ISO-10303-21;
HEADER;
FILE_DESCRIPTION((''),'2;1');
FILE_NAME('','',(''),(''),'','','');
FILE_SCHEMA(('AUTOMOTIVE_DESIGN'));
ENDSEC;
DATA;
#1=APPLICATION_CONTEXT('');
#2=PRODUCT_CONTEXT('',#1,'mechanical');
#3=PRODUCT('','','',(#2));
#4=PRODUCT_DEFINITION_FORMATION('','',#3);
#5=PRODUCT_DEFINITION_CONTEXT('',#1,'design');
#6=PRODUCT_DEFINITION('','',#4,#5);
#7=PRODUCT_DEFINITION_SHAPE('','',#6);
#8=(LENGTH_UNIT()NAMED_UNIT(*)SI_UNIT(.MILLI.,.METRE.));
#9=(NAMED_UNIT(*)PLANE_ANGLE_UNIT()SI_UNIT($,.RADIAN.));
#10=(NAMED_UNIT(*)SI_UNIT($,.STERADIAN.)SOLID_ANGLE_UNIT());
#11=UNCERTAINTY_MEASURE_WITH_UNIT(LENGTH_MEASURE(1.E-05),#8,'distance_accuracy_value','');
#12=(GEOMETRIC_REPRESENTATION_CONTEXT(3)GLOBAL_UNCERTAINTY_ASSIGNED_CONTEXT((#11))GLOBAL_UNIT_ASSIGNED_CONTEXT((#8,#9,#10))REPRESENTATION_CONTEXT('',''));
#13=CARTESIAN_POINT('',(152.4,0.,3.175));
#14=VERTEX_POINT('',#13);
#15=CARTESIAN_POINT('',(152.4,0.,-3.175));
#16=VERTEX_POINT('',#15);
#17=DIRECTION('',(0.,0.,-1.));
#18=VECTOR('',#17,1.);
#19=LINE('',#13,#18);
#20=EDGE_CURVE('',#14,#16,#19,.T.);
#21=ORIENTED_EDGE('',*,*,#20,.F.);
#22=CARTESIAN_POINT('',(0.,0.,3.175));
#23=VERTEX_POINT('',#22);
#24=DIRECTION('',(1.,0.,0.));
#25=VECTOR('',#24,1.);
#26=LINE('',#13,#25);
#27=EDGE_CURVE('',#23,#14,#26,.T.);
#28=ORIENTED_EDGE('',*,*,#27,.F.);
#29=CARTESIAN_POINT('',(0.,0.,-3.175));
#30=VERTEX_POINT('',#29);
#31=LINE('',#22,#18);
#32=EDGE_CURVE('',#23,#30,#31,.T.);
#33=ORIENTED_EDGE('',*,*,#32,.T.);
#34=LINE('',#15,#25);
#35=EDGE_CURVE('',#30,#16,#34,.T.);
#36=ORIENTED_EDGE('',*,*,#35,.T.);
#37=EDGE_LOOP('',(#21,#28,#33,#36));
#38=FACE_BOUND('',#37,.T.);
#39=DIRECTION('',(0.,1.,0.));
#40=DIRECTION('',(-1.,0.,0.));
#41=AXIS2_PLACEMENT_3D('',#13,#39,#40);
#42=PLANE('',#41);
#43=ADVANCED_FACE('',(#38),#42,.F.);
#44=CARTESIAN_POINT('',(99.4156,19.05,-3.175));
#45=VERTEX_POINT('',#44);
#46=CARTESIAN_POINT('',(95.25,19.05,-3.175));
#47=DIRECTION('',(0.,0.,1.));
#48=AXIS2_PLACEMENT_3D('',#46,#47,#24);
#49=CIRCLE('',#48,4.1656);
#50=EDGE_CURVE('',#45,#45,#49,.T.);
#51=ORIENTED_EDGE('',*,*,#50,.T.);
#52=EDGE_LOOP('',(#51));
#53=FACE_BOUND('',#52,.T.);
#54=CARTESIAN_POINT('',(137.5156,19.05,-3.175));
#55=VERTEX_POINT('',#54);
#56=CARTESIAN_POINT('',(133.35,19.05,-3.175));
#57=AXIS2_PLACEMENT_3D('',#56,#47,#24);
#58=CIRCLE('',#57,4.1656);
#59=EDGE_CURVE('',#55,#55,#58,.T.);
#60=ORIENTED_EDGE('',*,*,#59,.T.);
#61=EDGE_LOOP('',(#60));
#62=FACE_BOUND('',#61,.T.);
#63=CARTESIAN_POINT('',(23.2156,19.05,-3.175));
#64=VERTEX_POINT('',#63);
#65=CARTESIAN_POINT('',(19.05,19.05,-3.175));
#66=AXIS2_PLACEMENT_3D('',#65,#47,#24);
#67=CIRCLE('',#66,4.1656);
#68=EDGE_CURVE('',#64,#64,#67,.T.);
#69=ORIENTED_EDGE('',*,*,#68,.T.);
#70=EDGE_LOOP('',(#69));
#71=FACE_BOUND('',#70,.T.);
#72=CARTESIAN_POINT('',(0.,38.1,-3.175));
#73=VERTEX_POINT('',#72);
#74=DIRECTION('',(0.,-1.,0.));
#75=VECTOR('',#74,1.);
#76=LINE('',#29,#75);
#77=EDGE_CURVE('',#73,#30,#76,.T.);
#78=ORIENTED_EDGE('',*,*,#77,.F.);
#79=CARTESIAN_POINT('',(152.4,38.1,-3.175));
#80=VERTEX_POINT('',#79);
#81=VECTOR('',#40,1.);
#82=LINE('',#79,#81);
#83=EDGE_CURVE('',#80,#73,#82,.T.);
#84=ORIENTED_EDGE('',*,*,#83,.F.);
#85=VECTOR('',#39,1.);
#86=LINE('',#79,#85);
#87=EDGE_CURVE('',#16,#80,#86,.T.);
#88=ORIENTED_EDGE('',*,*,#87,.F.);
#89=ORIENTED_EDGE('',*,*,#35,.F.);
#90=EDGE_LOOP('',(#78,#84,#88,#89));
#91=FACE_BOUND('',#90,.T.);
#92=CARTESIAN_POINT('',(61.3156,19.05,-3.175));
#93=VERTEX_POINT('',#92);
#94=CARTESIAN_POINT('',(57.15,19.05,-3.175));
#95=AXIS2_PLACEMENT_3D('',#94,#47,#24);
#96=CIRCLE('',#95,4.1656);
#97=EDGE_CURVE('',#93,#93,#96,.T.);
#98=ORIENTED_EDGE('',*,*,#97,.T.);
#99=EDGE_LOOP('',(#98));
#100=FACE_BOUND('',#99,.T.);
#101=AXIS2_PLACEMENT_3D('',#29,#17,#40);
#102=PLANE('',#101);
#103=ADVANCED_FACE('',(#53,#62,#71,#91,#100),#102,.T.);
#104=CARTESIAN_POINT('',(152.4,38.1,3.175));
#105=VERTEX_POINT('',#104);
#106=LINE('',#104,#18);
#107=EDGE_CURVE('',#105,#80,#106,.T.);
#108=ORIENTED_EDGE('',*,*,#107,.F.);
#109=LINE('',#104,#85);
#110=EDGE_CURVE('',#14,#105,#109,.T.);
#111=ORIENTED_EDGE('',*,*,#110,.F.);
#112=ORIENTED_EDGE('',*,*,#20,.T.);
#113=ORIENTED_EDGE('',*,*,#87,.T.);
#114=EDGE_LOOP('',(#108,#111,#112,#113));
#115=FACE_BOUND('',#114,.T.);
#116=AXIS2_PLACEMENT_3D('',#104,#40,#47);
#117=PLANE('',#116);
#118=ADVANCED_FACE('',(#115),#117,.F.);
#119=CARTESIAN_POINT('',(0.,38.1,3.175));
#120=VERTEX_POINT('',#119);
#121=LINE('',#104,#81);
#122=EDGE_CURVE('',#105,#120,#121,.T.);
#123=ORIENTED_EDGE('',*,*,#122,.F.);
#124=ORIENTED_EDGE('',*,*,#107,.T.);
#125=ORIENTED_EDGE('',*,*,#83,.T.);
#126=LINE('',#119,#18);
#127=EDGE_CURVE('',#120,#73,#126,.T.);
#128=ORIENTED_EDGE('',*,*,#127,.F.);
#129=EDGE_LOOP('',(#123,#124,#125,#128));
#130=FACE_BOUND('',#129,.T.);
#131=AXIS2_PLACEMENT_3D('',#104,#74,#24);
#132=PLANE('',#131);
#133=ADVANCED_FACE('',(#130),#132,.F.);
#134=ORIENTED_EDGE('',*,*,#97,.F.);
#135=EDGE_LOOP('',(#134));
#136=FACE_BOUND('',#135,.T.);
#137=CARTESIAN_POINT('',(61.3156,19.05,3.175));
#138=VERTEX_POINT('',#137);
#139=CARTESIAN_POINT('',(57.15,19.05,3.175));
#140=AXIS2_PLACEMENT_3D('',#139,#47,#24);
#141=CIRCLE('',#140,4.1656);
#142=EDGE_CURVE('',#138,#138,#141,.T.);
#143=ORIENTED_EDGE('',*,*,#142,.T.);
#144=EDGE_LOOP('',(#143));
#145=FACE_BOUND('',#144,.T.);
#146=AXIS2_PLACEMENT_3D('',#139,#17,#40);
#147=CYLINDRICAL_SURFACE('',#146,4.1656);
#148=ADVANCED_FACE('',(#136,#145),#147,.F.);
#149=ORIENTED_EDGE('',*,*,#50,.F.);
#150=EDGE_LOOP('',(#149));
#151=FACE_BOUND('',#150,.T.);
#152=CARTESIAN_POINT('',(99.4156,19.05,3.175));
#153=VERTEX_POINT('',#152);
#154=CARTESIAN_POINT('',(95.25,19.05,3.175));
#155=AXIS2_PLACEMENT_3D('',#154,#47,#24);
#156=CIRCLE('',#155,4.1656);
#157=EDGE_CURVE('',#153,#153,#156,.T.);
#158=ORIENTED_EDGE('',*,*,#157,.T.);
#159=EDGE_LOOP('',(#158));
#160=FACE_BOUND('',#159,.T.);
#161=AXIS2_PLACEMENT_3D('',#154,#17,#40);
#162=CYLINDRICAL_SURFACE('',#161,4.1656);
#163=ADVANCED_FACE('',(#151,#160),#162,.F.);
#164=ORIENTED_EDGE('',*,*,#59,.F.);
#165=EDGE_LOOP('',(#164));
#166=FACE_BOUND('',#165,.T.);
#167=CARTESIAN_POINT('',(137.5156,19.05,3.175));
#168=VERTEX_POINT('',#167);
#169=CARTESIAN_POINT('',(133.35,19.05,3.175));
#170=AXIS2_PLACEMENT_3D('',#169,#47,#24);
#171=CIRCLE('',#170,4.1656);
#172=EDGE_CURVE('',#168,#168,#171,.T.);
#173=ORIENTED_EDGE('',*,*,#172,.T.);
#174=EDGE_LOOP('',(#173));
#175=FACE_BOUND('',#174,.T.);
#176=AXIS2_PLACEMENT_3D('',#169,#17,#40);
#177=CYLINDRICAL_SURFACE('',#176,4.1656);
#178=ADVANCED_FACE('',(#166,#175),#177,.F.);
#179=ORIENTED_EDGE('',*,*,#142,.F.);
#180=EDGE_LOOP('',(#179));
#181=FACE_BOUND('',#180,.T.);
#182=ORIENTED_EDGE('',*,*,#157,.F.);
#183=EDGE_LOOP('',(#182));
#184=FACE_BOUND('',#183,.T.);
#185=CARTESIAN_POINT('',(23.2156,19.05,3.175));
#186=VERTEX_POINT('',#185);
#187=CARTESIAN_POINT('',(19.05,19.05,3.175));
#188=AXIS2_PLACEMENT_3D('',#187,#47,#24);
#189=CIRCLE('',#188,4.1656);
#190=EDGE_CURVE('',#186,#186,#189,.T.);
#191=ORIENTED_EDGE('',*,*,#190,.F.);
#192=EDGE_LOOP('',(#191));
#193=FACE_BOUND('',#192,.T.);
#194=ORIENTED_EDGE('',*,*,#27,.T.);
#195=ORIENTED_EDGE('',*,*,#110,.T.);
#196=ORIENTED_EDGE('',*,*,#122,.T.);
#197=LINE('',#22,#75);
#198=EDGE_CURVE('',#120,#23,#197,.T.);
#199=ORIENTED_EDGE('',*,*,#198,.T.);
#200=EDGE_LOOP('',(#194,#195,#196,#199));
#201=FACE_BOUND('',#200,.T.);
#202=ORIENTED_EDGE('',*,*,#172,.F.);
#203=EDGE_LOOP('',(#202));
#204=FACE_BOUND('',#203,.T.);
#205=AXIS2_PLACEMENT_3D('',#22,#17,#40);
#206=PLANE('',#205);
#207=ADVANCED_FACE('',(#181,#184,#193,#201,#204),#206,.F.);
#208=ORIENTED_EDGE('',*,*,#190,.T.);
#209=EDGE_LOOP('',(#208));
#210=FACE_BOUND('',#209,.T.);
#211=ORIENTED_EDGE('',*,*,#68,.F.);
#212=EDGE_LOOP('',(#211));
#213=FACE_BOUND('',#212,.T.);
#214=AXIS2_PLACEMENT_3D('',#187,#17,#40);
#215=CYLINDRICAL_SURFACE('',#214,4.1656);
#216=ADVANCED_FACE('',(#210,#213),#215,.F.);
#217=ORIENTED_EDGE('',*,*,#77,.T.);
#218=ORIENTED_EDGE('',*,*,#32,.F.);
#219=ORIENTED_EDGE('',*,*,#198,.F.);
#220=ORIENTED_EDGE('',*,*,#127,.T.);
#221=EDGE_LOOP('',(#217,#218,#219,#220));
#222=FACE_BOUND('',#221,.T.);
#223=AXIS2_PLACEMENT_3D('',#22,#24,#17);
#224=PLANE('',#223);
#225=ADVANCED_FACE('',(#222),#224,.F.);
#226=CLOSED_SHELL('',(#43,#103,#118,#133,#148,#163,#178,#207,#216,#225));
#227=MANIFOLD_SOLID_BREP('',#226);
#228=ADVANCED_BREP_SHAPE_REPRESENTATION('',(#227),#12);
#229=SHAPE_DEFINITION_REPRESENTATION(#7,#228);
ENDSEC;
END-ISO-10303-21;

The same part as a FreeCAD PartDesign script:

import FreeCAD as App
import Part
import Sketcher
Q = App.Units.Quantity

doc = App.newDocument("Part")
body = doc.addObject("PartDesign::Body", "Body")

# Sketch on XY plane
sketch1 = body.newObject("Sketcher::SketchObject", "Sketch")
sketch1.AttachmentSupport = (doc.getObject("XY_Plane"), [""])
sketch1.MapMode = "FlatFace"
sketch1.addGeometry([
    Part.LineSegment(App.Vector(0, 38.1, 0), App.Vector(0, 0, 0)),  # 0
    Part.LineSegment(App.Vector(0, 0, 0), App.Vector(152.4, 0, 0)),  # 1
    Part.LineSegment(App.Vector(152.4, 0, 0), App.Vector(152.4, 38.1, 0)),  # 2
    Part.LineSegment(App.Vector(152.4, 38.1, 0), App.Vector(0, 38.1, 0)),  # 3
    Part.Circle(App.Vector(19.1, 19.1, 0), App.Vector(0, 0, 1), 4.2),  # 4
    Part.Circle(App.Vector(57.1, 19.1, 0), App.Vector(0, 0, 1), 4.2),  # 5
    Part.Circle(App.Vector(95.2, 19.1, 0), App.Vector(0, 0, 1), 4.2),  # 6
    Part.Circle(App.Vector(133.3, 19.1, 0), App.Vector(0, 0, 1), 4.2),  # 7
], False)
sketch1.addConstraint([
    Sketcher.Constraint("Coincident", 0, 2, 1, 1),
    Sketcher.Constraint("Coincident", 1, 2, 2, 1),
    Sketcher.Constraint("Coincident", 2, 2, 3, 1),
    Sketcher.Constraint("Coincident", 3, 2, 0, 1),
    Sketcher.Constraint("Vertical", 0),
    Sketcher.Constraint("Horizontal", 1),
    Sketcher.Constraint("Vertical", 2),
    Sketcher.Constraint("Horizontal", 3),
    Sketcher.Constraint("Coincident", 0, 2, -1, 1),
    Sketcher.Constraint("Equal", 4, 5),
    Sketcher.Constraint("Equal", 5, 6),
    Sketcher.Constraint("Equal", 6, 7),
    Sketcher.Constraint("Horizontal", 4, 3, 5, 3),
    Sketcher.Constraint("Horizontal", 5, 3, 6, 3),
    Sketcher.Constraint("Horizontal", 6, 3, 7, 3),
    Sketcher.Constraint("DistanceX", 1, 1, 1, 2, Q("6 in")),
    Sketcher.Constraint("Diameter", 4, Q("0.328 in")),
    Sketcher.Constraint("DistanceY", 0, 2, 0, 1, Q("1.5 in")),
    Sketcher.Constraint("DistanceX", 4, 3, 6, 3, Q("3 in")),
    Sketcher.Constraint("DistanceX", 5, 3, 7, 3, Q("3 in")),
    Sketcher.Constraint("DistanceX", 4, 3, 5, 3, Q("1.5 in")),
    Sketcher.Constraint("DistanceX", -1, 1, 4, 3, Q("0.75 in")),
    Sketcher.Constraint("DistanceY", -1, 1, 4, 3, Q("0.75 in")),
])
pad1 = body.newObject("PartDesign::Pad", "Pad")
pad1.Profile = sketch1
pad1.Length = Q("0.25 in")
pad1.Midplane = True

doc.recompute()
